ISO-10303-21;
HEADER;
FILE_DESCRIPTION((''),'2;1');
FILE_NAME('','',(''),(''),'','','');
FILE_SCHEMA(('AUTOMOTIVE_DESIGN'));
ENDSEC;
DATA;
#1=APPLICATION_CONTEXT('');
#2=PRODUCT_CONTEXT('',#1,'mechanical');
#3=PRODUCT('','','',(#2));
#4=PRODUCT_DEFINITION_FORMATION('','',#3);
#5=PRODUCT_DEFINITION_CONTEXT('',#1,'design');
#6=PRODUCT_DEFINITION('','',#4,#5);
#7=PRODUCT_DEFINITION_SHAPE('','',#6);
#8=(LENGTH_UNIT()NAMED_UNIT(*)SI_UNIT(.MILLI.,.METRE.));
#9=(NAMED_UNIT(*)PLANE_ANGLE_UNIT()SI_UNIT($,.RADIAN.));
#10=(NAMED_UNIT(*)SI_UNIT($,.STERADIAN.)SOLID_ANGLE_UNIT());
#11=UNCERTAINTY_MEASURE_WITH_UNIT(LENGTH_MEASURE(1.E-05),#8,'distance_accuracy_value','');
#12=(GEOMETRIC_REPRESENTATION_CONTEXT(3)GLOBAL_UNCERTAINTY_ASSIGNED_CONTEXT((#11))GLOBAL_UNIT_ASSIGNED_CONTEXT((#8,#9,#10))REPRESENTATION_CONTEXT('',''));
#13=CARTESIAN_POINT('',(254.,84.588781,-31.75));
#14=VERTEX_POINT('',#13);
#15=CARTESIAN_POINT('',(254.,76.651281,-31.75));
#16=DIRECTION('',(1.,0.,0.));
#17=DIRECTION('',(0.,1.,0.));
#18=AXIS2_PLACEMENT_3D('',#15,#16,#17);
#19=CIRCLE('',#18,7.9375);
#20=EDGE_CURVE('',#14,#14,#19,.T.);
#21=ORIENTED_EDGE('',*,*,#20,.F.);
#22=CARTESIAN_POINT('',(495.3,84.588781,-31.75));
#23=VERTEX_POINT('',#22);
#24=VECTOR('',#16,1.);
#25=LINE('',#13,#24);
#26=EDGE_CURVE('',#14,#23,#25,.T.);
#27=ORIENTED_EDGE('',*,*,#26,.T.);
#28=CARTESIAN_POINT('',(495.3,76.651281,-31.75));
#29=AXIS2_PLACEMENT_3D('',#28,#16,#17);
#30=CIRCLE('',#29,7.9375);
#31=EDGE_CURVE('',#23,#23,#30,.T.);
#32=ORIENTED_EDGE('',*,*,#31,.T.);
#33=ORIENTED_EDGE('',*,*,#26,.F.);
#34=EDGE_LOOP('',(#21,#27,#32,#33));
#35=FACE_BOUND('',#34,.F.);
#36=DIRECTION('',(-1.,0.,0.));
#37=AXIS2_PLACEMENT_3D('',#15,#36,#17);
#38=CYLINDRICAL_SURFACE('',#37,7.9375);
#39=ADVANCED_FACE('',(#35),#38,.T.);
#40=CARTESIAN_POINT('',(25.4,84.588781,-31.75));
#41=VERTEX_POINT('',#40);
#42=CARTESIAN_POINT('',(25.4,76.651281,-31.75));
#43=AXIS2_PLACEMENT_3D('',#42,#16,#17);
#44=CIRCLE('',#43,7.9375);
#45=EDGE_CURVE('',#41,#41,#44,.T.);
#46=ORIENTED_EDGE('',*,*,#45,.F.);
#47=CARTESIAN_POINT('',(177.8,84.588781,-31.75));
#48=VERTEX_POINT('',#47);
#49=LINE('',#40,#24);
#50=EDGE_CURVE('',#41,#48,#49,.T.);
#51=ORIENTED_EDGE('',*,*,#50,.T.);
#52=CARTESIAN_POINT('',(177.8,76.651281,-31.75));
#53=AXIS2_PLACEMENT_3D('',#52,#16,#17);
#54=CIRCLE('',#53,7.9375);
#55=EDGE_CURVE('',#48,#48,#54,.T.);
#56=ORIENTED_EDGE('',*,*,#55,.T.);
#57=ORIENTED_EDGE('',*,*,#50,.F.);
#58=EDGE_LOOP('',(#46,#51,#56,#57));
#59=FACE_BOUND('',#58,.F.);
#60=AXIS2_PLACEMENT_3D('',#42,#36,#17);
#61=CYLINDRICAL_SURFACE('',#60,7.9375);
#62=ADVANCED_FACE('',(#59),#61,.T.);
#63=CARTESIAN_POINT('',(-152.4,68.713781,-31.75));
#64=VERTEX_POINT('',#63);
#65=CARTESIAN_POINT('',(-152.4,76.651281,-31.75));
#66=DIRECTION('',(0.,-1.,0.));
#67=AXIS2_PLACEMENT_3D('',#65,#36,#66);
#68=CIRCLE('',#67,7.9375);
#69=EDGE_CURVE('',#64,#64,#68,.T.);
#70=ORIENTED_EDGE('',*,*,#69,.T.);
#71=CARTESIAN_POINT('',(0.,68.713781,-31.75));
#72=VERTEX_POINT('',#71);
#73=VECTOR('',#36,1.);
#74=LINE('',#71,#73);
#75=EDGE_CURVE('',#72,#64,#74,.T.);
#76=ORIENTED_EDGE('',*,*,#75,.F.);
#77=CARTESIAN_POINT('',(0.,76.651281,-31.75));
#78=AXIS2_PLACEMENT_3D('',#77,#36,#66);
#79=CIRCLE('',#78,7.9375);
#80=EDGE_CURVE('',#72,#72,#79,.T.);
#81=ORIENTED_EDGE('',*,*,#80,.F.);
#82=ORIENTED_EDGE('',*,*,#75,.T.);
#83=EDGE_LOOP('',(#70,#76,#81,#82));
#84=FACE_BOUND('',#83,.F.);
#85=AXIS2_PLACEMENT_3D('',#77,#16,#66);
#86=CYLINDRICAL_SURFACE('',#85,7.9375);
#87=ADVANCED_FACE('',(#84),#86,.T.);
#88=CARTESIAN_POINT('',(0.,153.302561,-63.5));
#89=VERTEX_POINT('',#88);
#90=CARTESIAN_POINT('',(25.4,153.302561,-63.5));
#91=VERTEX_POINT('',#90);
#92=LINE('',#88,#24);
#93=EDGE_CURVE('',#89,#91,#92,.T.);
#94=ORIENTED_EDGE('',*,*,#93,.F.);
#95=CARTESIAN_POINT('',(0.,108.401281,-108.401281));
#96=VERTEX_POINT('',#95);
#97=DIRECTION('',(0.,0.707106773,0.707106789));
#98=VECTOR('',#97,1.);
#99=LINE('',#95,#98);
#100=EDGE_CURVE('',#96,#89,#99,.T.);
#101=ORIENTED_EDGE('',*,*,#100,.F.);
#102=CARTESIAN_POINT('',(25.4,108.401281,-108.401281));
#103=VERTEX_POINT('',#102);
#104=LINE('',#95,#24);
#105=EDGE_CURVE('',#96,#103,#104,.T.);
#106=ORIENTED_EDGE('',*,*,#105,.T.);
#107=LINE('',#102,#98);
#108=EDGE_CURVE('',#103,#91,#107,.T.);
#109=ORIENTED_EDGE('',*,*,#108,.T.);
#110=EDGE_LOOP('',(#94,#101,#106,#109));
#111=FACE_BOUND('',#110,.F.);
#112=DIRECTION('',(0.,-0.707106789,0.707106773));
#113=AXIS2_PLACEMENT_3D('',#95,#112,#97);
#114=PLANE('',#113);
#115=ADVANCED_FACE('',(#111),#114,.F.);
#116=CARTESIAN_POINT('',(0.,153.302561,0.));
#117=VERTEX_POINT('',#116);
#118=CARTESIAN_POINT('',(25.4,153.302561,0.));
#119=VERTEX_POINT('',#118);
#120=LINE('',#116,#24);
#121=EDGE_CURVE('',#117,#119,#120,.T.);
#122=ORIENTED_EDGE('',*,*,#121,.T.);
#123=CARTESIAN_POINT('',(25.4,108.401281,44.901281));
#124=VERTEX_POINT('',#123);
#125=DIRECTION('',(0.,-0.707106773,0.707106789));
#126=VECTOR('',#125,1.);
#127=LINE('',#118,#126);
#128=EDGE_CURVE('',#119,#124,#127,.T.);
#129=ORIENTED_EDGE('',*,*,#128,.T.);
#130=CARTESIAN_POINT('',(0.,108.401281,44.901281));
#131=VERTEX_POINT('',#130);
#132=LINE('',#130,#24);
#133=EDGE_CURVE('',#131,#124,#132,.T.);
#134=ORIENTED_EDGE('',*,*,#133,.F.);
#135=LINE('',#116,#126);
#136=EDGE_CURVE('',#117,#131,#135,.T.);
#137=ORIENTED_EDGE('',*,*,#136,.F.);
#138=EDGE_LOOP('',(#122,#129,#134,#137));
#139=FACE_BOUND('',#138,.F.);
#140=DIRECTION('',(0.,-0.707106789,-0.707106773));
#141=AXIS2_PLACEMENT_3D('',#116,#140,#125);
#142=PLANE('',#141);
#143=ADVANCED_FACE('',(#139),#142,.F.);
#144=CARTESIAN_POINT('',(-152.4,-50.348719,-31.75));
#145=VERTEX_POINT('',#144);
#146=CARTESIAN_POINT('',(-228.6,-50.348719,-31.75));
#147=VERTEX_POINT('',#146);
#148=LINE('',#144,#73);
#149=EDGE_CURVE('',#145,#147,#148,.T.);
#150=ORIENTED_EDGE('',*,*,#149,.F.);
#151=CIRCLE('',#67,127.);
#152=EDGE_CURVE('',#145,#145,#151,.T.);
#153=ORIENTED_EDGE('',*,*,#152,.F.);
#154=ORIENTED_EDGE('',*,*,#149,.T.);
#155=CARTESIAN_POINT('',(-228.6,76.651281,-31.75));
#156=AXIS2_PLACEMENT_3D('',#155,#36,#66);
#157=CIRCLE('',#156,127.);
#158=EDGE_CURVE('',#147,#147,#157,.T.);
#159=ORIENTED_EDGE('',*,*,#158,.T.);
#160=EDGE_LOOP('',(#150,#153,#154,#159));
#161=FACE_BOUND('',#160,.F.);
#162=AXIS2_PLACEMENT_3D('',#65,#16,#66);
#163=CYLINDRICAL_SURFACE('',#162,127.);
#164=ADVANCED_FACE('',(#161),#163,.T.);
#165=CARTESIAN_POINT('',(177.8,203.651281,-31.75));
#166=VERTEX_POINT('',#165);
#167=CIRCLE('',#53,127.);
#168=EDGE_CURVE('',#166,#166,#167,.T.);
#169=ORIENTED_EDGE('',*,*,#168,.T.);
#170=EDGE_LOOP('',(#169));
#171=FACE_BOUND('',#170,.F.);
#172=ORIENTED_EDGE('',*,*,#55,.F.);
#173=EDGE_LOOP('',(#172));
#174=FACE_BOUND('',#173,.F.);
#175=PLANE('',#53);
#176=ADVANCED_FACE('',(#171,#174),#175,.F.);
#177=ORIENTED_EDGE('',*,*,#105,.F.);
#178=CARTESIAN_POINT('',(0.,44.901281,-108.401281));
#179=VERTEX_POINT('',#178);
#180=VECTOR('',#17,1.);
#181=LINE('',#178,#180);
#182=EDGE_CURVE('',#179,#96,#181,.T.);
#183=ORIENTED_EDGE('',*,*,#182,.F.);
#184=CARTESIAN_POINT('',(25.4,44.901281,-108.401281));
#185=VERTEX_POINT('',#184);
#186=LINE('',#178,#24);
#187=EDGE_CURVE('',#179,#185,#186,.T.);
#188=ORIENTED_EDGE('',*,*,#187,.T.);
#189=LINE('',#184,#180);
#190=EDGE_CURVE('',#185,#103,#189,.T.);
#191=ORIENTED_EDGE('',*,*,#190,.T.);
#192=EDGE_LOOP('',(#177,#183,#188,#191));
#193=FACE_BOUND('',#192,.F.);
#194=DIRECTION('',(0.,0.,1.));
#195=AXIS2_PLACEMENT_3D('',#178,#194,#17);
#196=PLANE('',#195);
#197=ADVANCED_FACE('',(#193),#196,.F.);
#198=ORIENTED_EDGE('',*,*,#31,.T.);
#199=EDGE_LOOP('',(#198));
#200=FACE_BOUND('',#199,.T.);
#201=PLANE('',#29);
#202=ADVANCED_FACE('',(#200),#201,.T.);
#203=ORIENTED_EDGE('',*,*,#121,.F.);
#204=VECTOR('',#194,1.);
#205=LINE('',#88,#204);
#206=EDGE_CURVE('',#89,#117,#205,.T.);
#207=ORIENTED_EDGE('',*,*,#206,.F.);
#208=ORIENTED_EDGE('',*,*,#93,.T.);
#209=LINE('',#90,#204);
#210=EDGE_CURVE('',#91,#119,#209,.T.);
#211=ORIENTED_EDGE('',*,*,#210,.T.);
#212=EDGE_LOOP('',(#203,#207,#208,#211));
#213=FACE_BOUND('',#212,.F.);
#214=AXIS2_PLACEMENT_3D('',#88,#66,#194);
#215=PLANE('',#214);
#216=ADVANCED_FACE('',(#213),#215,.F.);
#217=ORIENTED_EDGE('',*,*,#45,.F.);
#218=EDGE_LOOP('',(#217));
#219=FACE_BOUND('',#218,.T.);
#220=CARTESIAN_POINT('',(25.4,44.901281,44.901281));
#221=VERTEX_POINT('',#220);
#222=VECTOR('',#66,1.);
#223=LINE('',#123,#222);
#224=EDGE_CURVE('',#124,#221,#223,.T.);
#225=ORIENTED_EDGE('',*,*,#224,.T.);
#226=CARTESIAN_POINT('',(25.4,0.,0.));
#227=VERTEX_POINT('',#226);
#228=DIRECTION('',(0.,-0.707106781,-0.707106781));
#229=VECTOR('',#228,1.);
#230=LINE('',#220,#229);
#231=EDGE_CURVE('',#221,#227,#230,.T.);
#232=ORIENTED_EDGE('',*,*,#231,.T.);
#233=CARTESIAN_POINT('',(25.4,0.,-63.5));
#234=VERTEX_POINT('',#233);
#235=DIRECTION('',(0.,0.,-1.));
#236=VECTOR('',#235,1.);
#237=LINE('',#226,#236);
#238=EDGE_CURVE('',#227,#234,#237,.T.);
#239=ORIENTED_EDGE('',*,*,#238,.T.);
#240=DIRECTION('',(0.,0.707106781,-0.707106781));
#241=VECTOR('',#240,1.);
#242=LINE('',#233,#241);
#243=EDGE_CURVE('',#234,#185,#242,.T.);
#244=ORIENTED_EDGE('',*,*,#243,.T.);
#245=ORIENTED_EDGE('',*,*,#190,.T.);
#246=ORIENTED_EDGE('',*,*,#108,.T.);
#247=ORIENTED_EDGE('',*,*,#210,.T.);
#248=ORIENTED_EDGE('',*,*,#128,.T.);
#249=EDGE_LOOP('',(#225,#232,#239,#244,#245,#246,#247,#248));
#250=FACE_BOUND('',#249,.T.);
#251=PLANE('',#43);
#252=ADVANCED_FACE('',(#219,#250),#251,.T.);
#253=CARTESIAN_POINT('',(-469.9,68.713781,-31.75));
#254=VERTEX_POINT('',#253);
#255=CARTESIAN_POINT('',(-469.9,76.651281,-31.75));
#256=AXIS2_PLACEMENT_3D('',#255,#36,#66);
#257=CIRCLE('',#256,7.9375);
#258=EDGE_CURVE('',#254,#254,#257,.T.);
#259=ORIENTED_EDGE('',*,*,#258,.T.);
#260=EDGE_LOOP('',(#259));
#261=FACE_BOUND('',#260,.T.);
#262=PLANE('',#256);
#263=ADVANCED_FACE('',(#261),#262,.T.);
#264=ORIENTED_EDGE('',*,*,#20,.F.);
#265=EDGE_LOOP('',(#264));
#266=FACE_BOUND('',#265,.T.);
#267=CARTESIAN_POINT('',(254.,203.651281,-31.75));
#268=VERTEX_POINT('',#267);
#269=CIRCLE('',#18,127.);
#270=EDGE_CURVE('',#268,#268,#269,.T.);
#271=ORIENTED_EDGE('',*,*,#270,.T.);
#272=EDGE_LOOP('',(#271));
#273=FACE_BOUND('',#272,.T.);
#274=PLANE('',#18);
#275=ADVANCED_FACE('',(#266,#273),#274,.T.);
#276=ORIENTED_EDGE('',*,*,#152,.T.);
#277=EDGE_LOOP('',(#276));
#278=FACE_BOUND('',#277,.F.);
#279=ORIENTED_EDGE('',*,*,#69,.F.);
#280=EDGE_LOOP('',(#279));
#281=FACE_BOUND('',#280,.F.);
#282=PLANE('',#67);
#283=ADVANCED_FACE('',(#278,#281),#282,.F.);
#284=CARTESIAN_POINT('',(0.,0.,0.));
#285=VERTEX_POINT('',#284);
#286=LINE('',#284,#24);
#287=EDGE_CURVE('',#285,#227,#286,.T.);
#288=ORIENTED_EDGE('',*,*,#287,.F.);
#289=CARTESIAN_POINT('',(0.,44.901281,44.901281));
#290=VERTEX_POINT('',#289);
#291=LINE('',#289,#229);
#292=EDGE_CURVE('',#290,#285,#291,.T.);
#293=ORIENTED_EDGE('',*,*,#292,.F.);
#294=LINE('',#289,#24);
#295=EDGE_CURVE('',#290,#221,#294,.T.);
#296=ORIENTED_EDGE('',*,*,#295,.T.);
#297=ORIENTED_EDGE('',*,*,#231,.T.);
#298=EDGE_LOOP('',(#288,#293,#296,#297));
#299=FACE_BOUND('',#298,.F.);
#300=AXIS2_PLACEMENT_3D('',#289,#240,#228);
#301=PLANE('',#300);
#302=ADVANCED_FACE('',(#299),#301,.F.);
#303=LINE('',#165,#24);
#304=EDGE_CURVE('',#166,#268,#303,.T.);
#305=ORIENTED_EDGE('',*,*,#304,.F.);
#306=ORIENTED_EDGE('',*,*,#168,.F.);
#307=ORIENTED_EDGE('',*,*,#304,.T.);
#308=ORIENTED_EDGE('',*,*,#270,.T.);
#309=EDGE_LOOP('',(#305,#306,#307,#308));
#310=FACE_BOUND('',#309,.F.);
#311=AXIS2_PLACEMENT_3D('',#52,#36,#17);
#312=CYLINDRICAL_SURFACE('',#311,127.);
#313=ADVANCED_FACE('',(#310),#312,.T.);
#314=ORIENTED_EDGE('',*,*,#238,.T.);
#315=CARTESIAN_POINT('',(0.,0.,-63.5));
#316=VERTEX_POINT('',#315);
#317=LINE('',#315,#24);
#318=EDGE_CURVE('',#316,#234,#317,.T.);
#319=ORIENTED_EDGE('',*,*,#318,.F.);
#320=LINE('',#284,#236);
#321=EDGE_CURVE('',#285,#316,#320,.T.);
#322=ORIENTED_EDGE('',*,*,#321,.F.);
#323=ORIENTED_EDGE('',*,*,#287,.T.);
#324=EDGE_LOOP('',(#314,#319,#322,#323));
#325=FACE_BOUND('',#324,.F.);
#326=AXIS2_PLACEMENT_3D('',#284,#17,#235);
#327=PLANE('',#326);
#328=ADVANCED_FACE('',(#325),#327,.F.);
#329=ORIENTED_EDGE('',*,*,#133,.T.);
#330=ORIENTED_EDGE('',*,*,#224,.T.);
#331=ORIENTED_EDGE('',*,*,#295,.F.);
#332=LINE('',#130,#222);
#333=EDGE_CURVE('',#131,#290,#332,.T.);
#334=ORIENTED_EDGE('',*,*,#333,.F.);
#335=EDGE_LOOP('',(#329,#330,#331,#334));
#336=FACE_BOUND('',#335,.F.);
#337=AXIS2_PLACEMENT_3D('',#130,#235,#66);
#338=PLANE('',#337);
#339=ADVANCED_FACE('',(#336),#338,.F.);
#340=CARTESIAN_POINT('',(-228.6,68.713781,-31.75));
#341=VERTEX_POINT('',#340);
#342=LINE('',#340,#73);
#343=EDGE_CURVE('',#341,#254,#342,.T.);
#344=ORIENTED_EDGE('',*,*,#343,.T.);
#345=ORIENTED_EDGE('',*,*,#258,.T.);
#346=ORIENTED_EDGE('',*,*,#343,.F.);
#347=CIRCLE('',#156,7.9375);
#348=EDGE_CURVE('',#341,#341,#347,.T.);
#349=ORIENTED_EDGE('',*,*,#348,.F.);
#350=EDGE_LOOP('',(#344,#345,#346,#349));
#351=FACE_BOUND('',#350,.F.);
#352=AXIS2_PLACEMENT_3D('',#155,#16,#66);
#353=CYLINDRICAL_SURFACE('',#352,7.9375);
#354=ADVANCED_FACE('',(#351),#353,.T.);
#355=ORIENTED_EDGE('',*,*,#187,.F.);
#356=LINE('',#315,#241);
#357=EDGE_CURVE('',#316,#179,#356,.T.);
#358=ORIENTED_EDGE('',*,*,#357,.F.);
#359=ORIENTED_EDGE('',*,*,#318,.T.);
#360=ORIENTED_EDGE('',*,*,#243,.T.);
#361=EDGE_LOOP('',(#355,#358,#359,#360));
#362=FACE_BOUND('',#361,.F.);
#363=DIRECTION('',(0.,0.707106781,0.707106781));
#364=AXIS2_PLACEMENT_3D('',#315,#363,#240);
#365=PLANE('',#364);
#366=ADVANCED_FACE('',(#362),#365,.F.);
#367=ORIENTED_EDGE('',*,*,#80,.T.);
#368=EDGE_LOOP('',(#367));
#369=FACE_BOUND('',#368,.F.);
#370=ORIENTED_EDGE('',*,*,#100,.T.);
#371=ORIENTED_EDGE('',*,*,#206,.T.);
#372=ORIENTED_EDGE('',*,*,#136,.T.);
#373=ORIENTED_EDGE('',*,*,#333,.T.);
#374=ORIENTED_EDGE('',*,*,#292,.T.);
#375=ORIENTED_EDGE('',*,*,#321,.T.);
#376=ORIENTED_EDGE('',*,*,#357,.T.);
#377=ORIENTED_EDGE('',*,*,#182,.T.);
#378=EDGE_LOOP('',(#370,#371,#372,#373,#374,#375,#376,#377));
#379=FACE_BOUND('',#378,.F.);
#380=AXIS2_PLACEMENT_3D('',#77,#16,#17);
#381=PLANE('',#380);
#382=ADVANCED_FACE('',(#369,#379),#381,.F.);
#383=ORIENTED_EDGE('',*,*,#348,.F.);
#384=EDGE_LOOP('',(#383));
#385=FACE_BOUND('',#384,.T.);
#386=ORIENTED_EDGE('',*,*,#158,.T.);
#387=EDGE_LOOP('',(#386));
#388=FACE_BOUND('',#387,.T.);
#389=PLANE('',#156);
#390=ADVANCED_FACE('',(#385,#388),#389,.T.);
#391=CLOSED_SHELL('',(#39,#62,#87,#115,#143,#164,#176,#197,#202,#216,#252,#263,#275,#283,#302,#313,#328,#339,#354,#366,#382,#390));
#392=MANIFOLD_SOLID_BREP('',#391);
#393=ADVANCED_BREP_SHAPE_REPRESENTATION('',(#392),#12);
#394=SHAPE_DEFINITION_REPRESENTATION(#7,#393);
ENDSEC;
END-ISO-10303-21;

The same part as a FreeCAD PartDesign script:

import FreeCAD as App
import Part
import Sketcher
Q = App.Units.Quantity


def add_polygon(sketch, points):
    """Adds a closed chain of lines whose ends are joined by coincident constraints."""
    first, n = sketch.GeometryCount, len(points)
    for a, b in zip(points, points[1:] + points[:1]):
        sketch.addGeometry(Part.LineSegment(App.Vector(*a, 0), App.Vector(*b, 0)), False)
    for i in range(n):
        sketch.addConstraint(Sketcher.Constraint("Coincident", first + i, 2, first + (i + 1) % n, 1))

doc = App.newDocument("Part")
params = doc.addObject("Spreadsheet::Sheet", "Params")
for row, (alias, value) in enumerate([
    ("sketch1_width", "2.5 in"),
    ("sketch1_length", "2.5 in"),
    ("pad1_length", "1 in"),
    ("sketch2_diameter", "0.625 in"),
    ("pad2_length", "6 in"),
    ("sketch3_diameter", "10 in"),
    ("pad3_length", "3 in"),
    ("sketch4_diameter", "0.625 in"),
    ("pad4_length", "9.5 in"),
    ("sketch5_diameter", "0.625 in"),
    ("pad5_length", "6 in"),
    ("sketch6_diameter", "10 in"),
    ("pad6_length", "3 in"),
    ("sketch7_diameter", "0.625 in"),
    ("pad7_length", "9.5 in"),
], start=1):
    params.set(f"A{row}", alias)
    params.set(f"B{row}", "=" + value)
    params.setAlias(f"B{row}", alias)

body = doc.addObject("PartDesign::Body", "Body")

# Sketch on YZ plane
sketch1 = doc.addObject("Sketcher::SketchObject", "Sketch")
body.addObject(sketch1)
sketch1.AttachmentSupport = (doc.YZ_Plane, [""])
sketch1.MapMode = "FlatFace"
add_polygon(sketch1, [(44.901281, 44.901281), (0, 0), (0, -63.5), (44.901281, -108.401281), (108.401281, -108.401281), (153.302561, -63.5), (153.302561, 0), (108.401281, 44.901281)])  # lines 0-7
sketch1.addConstraint([
    Sketcher.Constraint("Vertical", 1),
    Sketcher.Constraint("Horizontal", 3),
    Sketcher.Constraint("Vertical", 5),
    Sketcher.Constraint("Horizontal", 7),
    Sketcher.Constraint("Coincident", 0, 2, -1, 1),
    Sketcher.Constraint("PointOnObject", 5, 2, -1),
    Sketcher.Constraint("Perpendicular", 0, 2),
    Sketcher.Constraint("Perpendicular", 2, 4),
    Sketcher.Constraint("Perpendicular", 4, 6),
    Sketcher.Constraint("Horizontal", 1, 2, 4, 2),
    Sketcher.Constraint("Vertical", 3, 2, 6, 2),
    Sketcher.Constraint("Vertical", 2, 2, 7, 2),
    Sketcher.Constraint("Equal", 7, 1),
    Sketcher.Constraint("DistanceX", 3, 1, 3, 2, Q("2.5 in")),
    Sketcher.Constraint("Distance", 0, Q("2.5 in")),
])
sketch1.setExpression("Constraints[21]", "Params.sketch1_width")
sketch1.setExpression("Constraints[22]", "Params.sketch1_length")
pad1 = doc.addObject("PartDesign::Pad", "Pad")
body.addObject(pad1)
pad1.Profile = sketch1
pad1.setExpression("Length", "Params.pad1_length")

# Sketch on YZ plane
sketch2 = doc.addObject("Sketcher::SketchObject", "Sketch001")
body.addObject(sketch2)
sketch2.AttachmentSupport = (doc.YZ_Plane, [""])
sketch2.MapMode = "FlatFace"
sketch2.AttachmentOffset = App.Placement(App.Vector(0, 0, 1 * 25.4), App.Rotation())
sketch2.addGeometry(Part.Circle(App.Vector(76.651281, -31.75, 0), App.Vector(0, 0, 1), 7.9375), False)
sketch2.addConstraint([
    Sketcher.Constraint("Diameter", 0, Q("0.625 in")),
    Sketcher.Constraint("DistanceY", 0, 3, -1, 1, Q("1.25 in")),
    Sketcher.Constraint("DistanceX", -1, 1, 0, 3, 76.651281),
])
sketch2.setExpression("Constraints[0]", "Params.sketch2_diameter")
pad2 = doc.addObject("PartDesign::Pad", "Pad001")
body.addObject(pad2)
pad2.Profile = sketch2
pad2.setExpression("Length", "Params.pad2_length")

# Sketch on YZ plane
sketch3 = doc.addObject("Sketcher::SketchObject", "Sketch002")
body.addObject(sketch3)
sketch3.AttachmentSupport = (doc.YZ_Plane, [""])
sketch3.MapMode = "FlatFace"
sketch3.AttachmentOffset = App.Placement(App.Vector(0, 0, 7 * 25.4), App.Rotation())
sketch3.addGeometry(Part.Circle(App.Vector(76.651281, -31.75, 0), App.Vector(0, 0, 1), 127), False)
sketch3.addConstraint([
    Sketcher.Constraint("Diameter", 0, Q("10 in")),
    Sketcher.Constraint("DistanceY", 0, 3, -1, 1, Q("1.25 in")),
    Sketcher.Constraint("DistanceX", -1, 1, 0, 3, 76.651281),
])
sketch3.setExpression("Constraints[0]", "Params.sketch3_diameter")
pad3 = doc.addObject("PartDesign::Pad", "Pad002")
body.addObject(pad3)
pad3.Profile = sketch3
pad3.setExpression("Length", "Params.pad3_length")

# Sketch on YZ plane
sketch4 = doc.addObject("Sketcher::SketchObject", "Sketch003")
body.addObject(sketch4)
sketch4.AttachmentSupport = (doc.YZ_Plane, [""])
sketch4.MapMode = "FlatFace"
sketch4.AttachmentOffset = App.Placement(App.Vector(0, 0, 10 * 25.4), App.Rotation())
sketch4.addGeometry(Part.Circle(App.Vector(76.651281, -31.75, 0), App.Vector(0, 0, 1), 7.9375), False)
sketch4.addConstraint([
    Sketcher.Constraint("Diameter", 0, Q("0.625 in")),
    Sketcher.Constraint("DistanceY", 0, 3, -1, 1, Q("1.25 in")),
    Sketcher.Constraint("DistanceX", -1, 1, 0, 3, 76.651281),
])
sketch4.setExpression("Constraints[0]", "Params.sketch4_diameter")
pad4 = doc.addObject("PartDesign::Pad", "Pad003")
body.addObject(pad4)
pad4.Profile = sketch4
pad4.setExpression("Length", "Params.pad4_length")

# Sketch on YZ plane
sketch5 = doc.addObject("Sketcher::SketchObject", "Sketch004")
body.addObject(sketch5)
sketch5.AttachmentSupport = (doc.YZ_Plane, [""])
sketch5.MapMode = "FlatFace"
sketch5.addGeometry(Part.Circle(App.Vector(76.651281, -31.75, 0), App.Vector(0, 0, 1), 7.9375), False)
sketch5.addConstraint([
    Sketcher.Constraint("Diameter", 0, Q("0.625 in")),
    Sketcher.Constraint("DistanceY", 0, 3, -1, 1, Q("1.25 in")),
    Sketcher.Constraint("DistanceX", -1, 1, 0, 3, 76.651281),
])
sketch5.setExpression("Constraints[0]", "Params.sketch5_diameter")
pad5 = doc.addObject("PartDesign::Pad", "Pad004")
body.addObject(pad5)
pad5.Profile = sketch5
pad5.setExpression("Length", "Params.pad5_length")
pad5.Reversed = True

# Sketch on YZ plane
sketch6 = doc.addObject("Sketcher::SketchObject", "Sketch005")
body.addObject(sketch6)
sketch6.AttachmentSupport = (doc.YZ_Plane, [""])
sketch6.MapMode = "FlatFace"
sketch6.AttachmentOffset = App.Placement(App.Vector(0, 0, -6 * 25.4), App.Rotation())
sketch6.addGeometry(Part.Circle(App.Vector(76.651281, -31.75, 0), App.Vector(0, 0, 1), 127), False)
sketch6.addConstraint([
    Sketcher.Constraint("Diameter", 0, Q("10 in")),
    Sketcher.Constraint("DistanceY", 0, 3, -1, 1, Q("1.25 in")),
    Sketcher.Constraint("DistanceX", -1, 1, 0, 3, 76.651281),
])
sketch6.setExpression("Constraints[0]", "Params.sketch6_diameter")
pad6 = doc.addObject("PartDesign::Pad", "Pad005")
body.addObject(pad6)
pad6.Profile = sketch6
pad6.setExpression("Length", "Params.pad6_length")
pad6.Reversed = True

# Sketch on YZ plane
sketch7 = doc.addObject("Sketcher::SketchObject", "Sketch006")
body.addObject(sketch7)
sketch7.AttachmentSupport = (doc.YZ_Plane, [""])
sketch7.MapMode = "FlatFace"
sketch7.AttachmentOffset = App.Placement(App.Vector(0, 0, -9 * 25.4), App.Rotation())
sketch7.addGeometry(Part.Circle(App.Vector(76.651281, -31.75, 0), App.Vector(0, 0, 1), 7.9375), False)
sketch7.addConstraint([
    Sketcher.Constraint("Diameter", 0, Q("0.625 in")),
    Sketcher.Constraint("DistanceY", 0, 3, -1, 1, Q("1.25 in")),
    Sketcher.Constraint("DistanceX", -1, 1, 0, 3, 76.651281),
])
sketch7.setExpression("Constraints[0]", "Params.sketch7_diameter")
pad7 = doc.addObject("PartDesign::Pad", "Pad006")
body.addObject(pad7)
pad7.Profile = sketch7
pad7.setExpression("Length", "Params.pad7_length")
pad7.Reversed = True

doc.recompute()
